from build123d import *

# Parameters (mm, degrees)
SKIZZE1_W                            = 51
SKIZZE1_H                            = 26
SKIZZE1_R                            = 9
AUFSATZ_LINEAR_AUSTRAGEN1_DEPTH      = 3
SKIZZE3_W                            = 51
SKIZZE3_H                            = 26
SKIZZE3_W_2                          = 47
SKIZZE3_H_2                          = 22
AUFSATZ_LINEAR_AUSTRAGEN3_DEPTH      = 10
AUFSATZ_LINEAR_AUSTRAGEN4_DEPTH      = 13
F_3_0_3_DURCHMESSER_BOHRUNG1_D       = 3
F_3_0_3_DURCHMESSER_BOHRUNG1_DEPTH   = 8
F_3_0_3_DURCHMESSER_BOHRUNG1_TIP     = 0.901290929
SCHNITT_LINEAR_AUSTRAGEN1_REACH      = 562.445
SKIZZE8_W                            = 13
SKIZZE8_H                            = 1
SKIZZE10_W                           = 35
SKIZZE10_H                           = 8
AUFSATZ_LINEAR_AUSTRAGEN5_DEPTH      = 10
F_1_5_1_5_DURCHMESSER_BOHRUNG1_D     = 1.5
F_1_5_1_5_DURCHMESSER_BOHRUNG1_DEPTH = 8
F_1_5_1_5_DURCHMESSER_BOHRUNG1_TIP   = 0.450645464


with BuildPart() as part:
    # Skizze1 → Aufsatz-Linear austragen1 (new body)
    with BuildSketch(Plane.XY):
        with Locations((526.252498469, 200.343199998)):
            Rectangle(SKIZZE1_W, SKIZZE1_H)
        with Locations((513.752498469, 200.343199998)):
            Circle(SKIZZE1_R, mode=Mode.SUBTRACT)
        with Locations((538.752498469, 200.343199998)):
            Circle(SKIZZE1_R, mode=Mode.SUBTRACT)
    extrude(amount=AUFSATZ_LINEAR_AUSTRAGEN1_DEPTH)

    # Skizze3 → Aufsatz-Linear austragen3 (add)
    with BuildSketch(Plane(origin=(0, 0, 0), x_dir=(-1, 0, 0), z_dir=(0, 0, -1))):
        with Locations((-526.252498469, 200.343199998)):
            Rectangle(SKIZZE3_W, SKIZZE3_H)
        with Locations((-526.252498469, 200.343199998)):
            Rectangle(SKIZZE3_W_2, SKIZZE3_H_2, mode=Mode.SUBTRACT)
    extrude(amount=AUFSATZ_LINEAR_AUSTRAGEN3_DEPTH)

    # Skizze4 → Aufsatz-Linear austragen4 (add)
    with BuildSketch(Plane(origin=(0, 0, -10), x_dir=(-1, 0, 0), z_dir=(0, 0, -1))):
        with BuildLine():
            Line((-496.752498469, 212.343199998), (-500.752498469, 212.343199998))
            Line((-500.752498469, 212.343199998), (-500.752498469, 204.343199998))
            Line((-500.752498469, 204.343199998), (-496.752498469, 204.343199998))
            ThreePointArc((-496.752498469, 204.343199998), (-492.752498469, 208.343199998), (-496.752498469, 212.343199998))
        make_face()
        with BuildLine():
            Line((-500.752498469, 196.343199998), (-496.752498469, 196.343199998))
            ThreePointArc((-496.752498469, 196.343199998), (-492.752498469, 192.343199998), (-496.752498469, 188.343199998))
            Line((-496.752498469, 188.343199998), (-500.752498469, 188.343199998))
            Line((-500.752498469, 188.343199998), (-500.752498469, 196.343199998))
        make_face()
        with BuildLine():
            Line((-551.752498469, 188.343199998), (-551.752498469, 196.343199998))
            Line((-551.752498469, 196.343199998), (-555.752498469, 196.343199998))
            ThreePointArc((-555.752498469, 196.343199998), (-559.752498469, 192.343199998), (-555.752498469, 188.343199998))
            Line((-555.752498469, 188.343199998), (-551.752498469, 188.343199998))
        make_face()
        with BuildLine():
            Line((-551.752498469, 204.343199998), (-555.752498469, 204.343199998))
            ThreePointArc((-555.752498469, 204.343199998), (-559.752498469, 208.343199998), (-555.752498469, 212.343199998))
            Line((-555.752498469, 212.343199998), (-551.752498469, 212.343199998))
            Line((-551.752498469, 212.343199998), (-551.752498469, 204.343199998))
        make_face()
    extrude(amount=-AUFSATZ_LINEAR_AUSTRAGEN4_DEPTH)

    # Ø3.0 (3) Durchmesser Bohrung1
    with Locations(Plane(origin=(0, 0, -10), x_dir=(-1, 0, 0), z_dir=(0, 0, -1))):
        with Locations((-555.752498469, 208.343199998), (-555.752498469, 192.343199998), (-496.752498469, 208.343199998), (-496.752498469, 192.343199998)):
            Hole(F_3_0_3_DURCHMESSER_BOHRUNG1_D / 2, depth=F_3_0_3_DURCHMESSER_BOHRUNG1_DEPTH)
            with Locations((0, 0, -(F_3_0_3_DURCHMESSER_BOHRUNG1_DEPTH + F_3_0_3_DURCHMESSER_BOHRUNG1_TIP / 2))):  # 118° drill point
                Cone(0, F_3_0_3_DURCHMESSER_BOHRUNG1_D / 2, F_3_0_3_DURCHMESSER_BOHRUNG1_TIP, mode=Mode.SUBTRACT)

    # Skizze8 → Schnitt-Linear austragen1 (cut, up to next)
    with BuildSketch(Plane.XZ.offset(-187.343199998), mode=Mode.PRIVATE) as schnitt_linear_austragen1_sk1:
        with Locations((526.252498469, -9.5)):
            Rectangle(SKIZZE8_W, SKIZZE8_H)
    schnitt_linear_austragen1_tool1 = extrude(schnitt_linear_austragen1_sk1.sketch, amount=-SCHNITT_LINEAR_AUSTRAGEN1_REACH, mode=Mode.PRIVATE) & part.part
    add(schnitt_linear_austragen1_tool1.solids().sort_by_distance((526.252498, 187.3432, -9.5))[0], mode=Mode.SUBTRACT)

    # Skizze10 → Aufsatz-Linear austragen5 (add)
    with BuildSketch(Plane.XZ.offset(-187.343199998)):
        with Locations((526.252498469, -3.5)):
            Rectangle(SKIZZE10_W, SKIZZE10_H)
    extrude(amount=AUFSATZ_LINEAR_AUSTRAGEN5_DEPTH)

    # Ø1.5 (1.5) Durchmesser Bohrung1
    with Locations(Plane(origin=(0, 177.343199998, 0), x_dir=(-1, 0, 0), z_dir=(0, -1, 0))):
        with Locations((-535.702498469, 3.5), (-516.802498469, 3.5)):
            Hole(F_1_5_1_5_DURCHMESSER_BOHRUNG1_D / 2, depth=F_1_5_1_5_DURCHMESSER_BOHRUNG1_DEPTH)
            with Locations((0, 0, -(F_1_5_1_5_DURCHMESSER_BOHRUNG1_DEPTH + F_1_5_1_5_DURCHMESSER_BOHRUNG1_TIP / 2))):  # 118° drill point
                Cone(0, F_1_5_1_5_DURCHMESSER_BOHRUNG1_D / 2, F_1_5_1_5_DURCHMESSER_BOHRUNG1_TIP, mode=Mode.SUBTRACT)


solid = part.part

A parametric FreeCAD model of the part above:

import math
import FreeCAD as App
import Part
import Sketcher
Q = App.Units.Quantity

doc = App.newDocument("Part")
params = doc.addObject("Spreadsheet::Sheet", "Params")
for row, (alias, value) in enumerate([
    ("sketch1_diameter", "18 mm"),
    ("sketch1_width", "51 mm"),
    ("sketch1_height", "26 mm"),
    ("pad1_length", "3 mm"),
    ("sketch2_width", "51 mm"),
    ("sketch2_width2", "47 mm"),
    ("sketch2_height", "26 mm"),
    ("sketch2_height2", "22 mm"),
    ("pad2_length", "10 mm"),
    ("sketch3_radius", "4 mm"),
    ("sketch3_width", "4 mm"),
    ("pad3_length", "13 mm"),
    ("sketch4_diameter", "3 mm"),
    ("hole_diameter", "3 mm"),
    ("hole_depth", "8 mm"),
    ("sketch5_width", "13 mm"),
    ("sketch5_height", "1 mm"),
    ("sketch6_width", "35 mm"),
    ("sketch6_height", "8 mm"),
    ("pad4_length", "10 mm"),
    ("sketch7_diameter", "1.5 mm"),
    ("hole2_diameter", "1.5 mm"),
    ("hole2_depth", "8 mm"),
], start=1):
    params.set(f"A{row}", alias)
    params.set(f"B{row}", "=" + value)
    params.setAlias(f"B{row}", alias)

body = doc.addObject("PartDesign::Body", "Body")

# Sketch on XY plane
sketch1 = doc.addObject("Sketcher::SketchObject", "Sketch")
body.addObject(sketch1)
sketch1.AttachmentSupport = (doc.XY_Plane, [""])
sketch1.MapMode = "FlatFace"
sketch1.addGeometry([
    Part.LineSegment(App.Vector(501, 213, 0), App.Vector(501, 187, 0)),  # 0
    Part.LineSegment(App.Vector(501, 187, 0), App.Vector(552, 187, 0)),  # 1
    Part.LineSegment(App.Vector(552, 187, 0), App.Vector(552, 213, 0)),  # 2
    Part.LineSegment(App.Vector(552, 213, 0), App.Vector(501, 213, 0)),  # 3
    Part.Circle(App.Vector(514, 200, 0), App.Vector(0, 0, 1), 9),  # 4
    Part.Circle(App.Vector(539, 200, 0), App.Vector(0, 0, 1), 9),  # 5
], False)
sketch1.addConstraint([
    Sketcher.Constraint("Coincident", 0, 2, 1, 1),
    Sketcher.Constraint("Coincident", 1, 2, 2, 1),
    Sketcher.Constraint("Coincident", 2, 2, 3, 1),
    Sketcher.Constraint("Coincident", 3, 2, 0, 1),
    Sketcher.Constraint("Vertical", 0),
    Sketcher.Constraint("Horizontal", 1),
    Sketcher.Constraint("Vertical", 2),
    Sketcher.Constraint("Horizontal", 3),
    Sketcher.Constraint("Equal", 4, 5),
    Sketcher.Constraint("Horizontal", 4, 3, 5, 3),
    Sketcher.Constraint("Diameter", 4, Q("18 mm")),
    Sketcher.Constraint("DistanceX", 1, 1, 1, 2, Q("51 mm")),
    Sketcher.Constraint("DistanceY", 0, 2, 0, 1, Q("26 mm")),
    Sketcher.Constraint("DistanceX", 4, 3, 5, 3, Q("25 mm")),
    Sketcher.Constraint("DistanceX", 0, 2, 4, 3, Q("13 mm")),
    Sketcher.Constraint("DistanceY", 0, 2, 4, 3, Q("13 mm")),
    Sketcher.Constraint("DistanceX", -1, 1, 4, 3, Q("513.752498 mm")),
    Sketcher.Constraint("DistanceY", -1, 1, 4, 3, Q("200.3432 mm")),
])
sketch1.setExpression("Constraints[10]", "Params.sketch1_diameter")
sketch1.setExpression("Constraints[11]", "Params.sketch1_width")
sketch1.setExpression("Constraints[12]", "Params.sketch1_height")
pad1 = doc.addObject("PartDesign::Pad", "Pad")
body.addObject(pad1)
pad1.Profile = sketch1
pad1.setExpression("Length", "Params.pad1_length")

# Sketch on XY plane
sketch2 = doc.addObject("Sketcher::SketchObject", "Sketch001")
body.addObject(sketch2)
sketch2.AttachmentSupport = (doc.XY_Plane, [""])
sketch2.MapMode = "FlatFace"
sketch2.addGeometry([
    Part.LineSegment(App.Vector(552, 213, 0), App.Vector(552, 187, 0)),  # 0
    Part.LineSegment(App.Vector(552, 187, 0), App.Vector(501, 187, 0)),  # 1
    Part.LineSegment(App.Vector(501, 187, 0), App.Vector(501, 213, 0)),  # 2
    Part.LineSegment(App.Vector(501, 213, 0), App.Vector(552, 213, 0)),  # 3
    Part.LineSegment(App.Vector(503, 189, 0), App.Vector(550, 189, 0)),  # 4
    Part.LineSegment(App.Vector(550, 189, 0), App.Vector(550, 211, 0)),  # 5
    Part.LineSegment(App.Vector(550, 211, 0), App.Vector(503, 211, 0)),  # 6
    Part.LineSegment(App.Vector(503, 211, 0), App.Vector(503, 189, 0)),  # 7
], False)
sketch2.addConstraint([
    Sketcher.Constraint("Coincident", 0, 2, 1, 1),
    Sketcher.Constraint("Coincident", 1, 2, 2, 1),
    Sketcher.Constraint("Coincident", 2, 2, 3, 1),
    Sketcher.Constraint("Coincident", 3, 2, 0, 1),
    Sketcher.Constraint("Coincident", 4, 2, 5, 1),
    Sketcher.Constraint("Coincident", 5, 2, 6, 1),
    Sketcher.Constraint("Coincident", 6, 2, 7, 1),
    Sketcher.Constraint("Coincident", 7, 2, 4, 1),
    Sketcher.Constraint("Vertical", 0),
    Sketcher.Constraint("Horizontal", 1),
    Sketcher.Constraint("Vertical", 2),
    Sketcher.Constraint("Horizontal", 3),
    Sketcher.Constraint("Horizontal", 4),
    Sketcher.Constraint("Vertical", 5),
    Sketcher.Constraint("Horizontal", 6),
    Sketcher.Constraint("Vertical", 7),
    Sketcher.Constraint("DistanceX", 1, 2, 1, 1, Q("51 mm")),
    Sketcher.Constraint("DistanceX", 4, 1, 4, 2, Q("47 mm")),
    Sketcher.Constraint("DistanceY", 0, 2, 0, 1, Q("26 mm")),
    Sketcher.Constraint("DistanceY", 5, 1, 5, 2, Q("22 mm")),
    Sketcher.Constraint("DistanceX", 4, 2, 0, 2, Q("2 mm")),
    Sketcher.Constraint("DistanceY", 0, 2, 4, 2, Q("2 mm")),
    Sketcher.Constraint("DistanceX", -1, 1, 0, 2, Q("551.752498 mm")),
    Sketcher.Constraint("DistanceY", -1, 1, 0, 2, Q("187.3432 mm")),
])
sketch2.setExpression("Constraints[16]", "Params.sketch2_width")
sketch2.setExpression("Constraints[17]", "Params.sketch2_width2")
sketch2.setExpression("Constraints[18]", "Params.sketch2_height")
sketch2.setExpression("Constraints[19]", "Params.sketch2_height2")
pad2 = doc.addObject("PartDesign::Pad", "Pad001")
body.addObject(pad2)
pad2.Profile = sketch2
pad2.setExpression("Length", "Params.pad2_length")
pad2.Reversed = True

# Sketch on XY plane
sketch3 = doc.addObject("Sketcher::SketchObject", "Sketch002")
body.addObject(sketch3)
sketch3.AttachmentSupport = (doc.XY_Plane, [""])
sketch3.MapMode = "FlatFace"
sketch3.AttachmentOffset = App.Placement(App.Vector(0, 0, -10), App.Rotation())
sketch3.addGeometry([
    Part.LineSegment(App.Vector(496.8, 212.3, 0), App.Vector(500.8, 212.3, 0)),  # 0
    Part.LineSegment(App.Vector(500.8, 212.3, 0), App.Vector(500.8, 204.3, 0)),  # 1
    Part.LineSegment(App.Vector(500.8, 204.3, 0), App.Vector(496.8, 204.3, 0)),  # 2
    Part.ArcOfCircle(Part.Circle(App.Vector(496.8, 208.3, 0), App.Vector(0, 0, 1), 4), math.radians(90), math.radians(270)),  # 3
    Part.LineSegment(App.Vector(496.8, 196.3, 0), App.Vector(500.8, 196.3, 0)),  # 4
    Part.LineSegment(App.Vector(500.8, 196.3, 0), App.Vector(500.8, 188.3, 0)),  # 5
    Part.LineSegment(App.Vector(500.8, 188.3, 0), App.Vector(496.8, 188.3, 0)),  # 6
    Part.ArcOfCircle(Part.Circle(App.Vector(496.8, 192.3, 0), App.Vector(0, 0, 1), 4), math.radians(90), math.radians(270)),  # 7
    Part.LineSegment(App.Vector(551.8, 188.3, 0), App.Vector(551.8, 196.3, 0)),  # 8
    Part.LineSegment(App.Vector(551.8, 196.3, 0), App.Vector(555.8, 196.3, 0)),  # 9
    Part.ArcOfCircle(Part.Circle(App.Vector(555.8, 192.3, 0), App.Vector(0, 0, 1), 4), math.radians(-90), math.radians(90)),  # 10
    Part.LineSegment(App.Vector(555.8, 188.3, 0), App.Vector(551.8, 188.3, 0)),  # 11
    Part.LineSegment(App.Vector(555.8, 204.3, 0), App.Vector(551.8, 204.3, 0)),  # 12
    Part.LineSegment(App.Vector(551.8, 204.3, 0), App.Vector(551.8, 212.3, 0)),  # 13
    Part.LineSegment(App.Vector(551.8, 212.3, 0), App.Vector(555.8, 212.3, 0)),  # 14
    Part.ArcOfCircle(Part.Circle(App.Vector(555.8, 208.3, 0), App.Vector(0, 0, 1), 4), math.radians(-90), math.radians(90)),  # 15
], False)
sketch3.addConstraint([
    Sketcher.Constraint("Coincident", 0, 2, 1, 1),
    Sketcher.Constraint("Coincident", 1, 2, 2, 1),
    Sketcher.Constraint("Tangent", 2, 2, 3, 2),
    Sketcher.Constraint("Tangent", 3, 1, 0, 1),
    Sketcher.Constraint("Coincident", 4, 2, 5, 1),
    Sketcher.Constraint("Coincident", 5, 2, 6, 1),
    Sketcher.Constraint("Tangent", 6, 2, 7, 2),
    Sketcher.Constraint("Tangent", 7, 1, 4, 1),
    Sketcher.Constraint("Coincident", 8, 2, 9, 1),
    Sketcher.Constraint("Tangent", 9, 2, 10, 2),
    Sketcher.Constraint("Tangent", 10, 1, 11, 1),
    Sketcher.Constraint("Coincident", 11, 2, 8, 1),
    Sketcher.Constraint("Coincident", 12, 2, 13, 1),
    Sketcher.Constraint("Coincident", 13, 2, 14, 1),
    Sketcher.Constraint("Tangent", 14, 2, 15, 2),
    Sketcher.Constraint("Tangent", 15, 1, 12, 1),
    Sketcher.Constraint("Horizontal", 0),
    Sketcher.Constraint("Vertical", 1),
    Sketcher.Constraint("Horizontal", 2),
    Sketcher.Constraint("Horizontal", 4),
    Sketcher.Constraint("Vertical", 5),
    Sketcher.Constraint("Horizontal", 6),
    Sketcher.Constraint("Vertical", 8),
    Sketcher.Constraint("Horizontal", 9),
    Sketcher.Constraint("Horizontal", 11),
    Sketcher.Constraint("Horizontal", 12),
    Sketcher.Constraint("Vertical", 13),
    Sketcher.Constraint("Horizontal", 14),
    Sketcher.Constraint("Equal", 3, 7),
    Sketcher.Constraint("Equal", 7, 10),
    Sketcher.Constraint("Equal", 10, 15),
    Sketcher.Constraint("Horizontal", 7, 3, 10, 3),
    Sketcher.Constraint("Horizontal", 3, 3, 15, 3),
    Sketcher.Constraint("Vertical", 3, 3, 7, 3),
    Sketcher.Constraint("Vertical", 10, 3, 15, 3),
    Sketcher.Constraint("Vertical", 1, 2, 4, 2),
    Sketcher.Constraint("Vertical", 11, 2, 12, 2),
    Sketcher.Constraint("Equal", 6, 9),
    Sketcher.Constraint("Radius", 3, Q("4 mm")),
    Sketcher.Constraint("DistanceX", 0, 1, 0, 2, Q("4 mm")),
    Sketcher.Constraint("DistanceY", 7, 3, 3, 3, Q("16 mm")),
    Sketcher.Constraint("DistanceX", 7, 3, 10, 3, Q("59 mm")),
    Sketcher.Constraint("DistanceX", -1, 1, 3, 3, Q("496.752498 mm")),
    Sketcher.Constraint("DistanceY", -1, 1, 3, 3, Q("208.3432 mm")),
])
sketch3.setExpression("Constraints[38]", "Params.sketch3_radius")
sketch3.setExpression("Constraints[39]", "Params.sketch3_width")
pad3 = doc.addObject("PartDesign::Pad", "Pad002")
body.addObject(pad3)
pad3.Profile = sketch3
pad3.setExpression("Length", "Params.pad3_length")

# Sketch on XY plane
sketch4 = doc.addObject("Sketcher::SketchObject", "Sketch003")
body.addObject(sketch4)
sketch4.AttachmentSupport = (doc.XY_Plane, [""])
sketch4.MapMode = "FlatFace"
sketch4.AttachmentOffset = App.Placement(App.Vector(0, 0, -10), App.Rotation())
sketch4.addGeometry([
    Part.Circle(App.Vector(555.8, 208.3, 0), App.Vector(0, 0, 1), 1.5),
    Part.Circle(App.Vector(555.8, 192.3, 0), App.Vector(0, 0, 1), 1.5),
    Part.Circle(App.Vector(496.8, 208.3, 0), App.Vector(0, 0, 1), 1.5),
    Part.Circle(App.Vector(496.8, 192.3, 0), App.Vector(0, 0, 1), 1.5),
], False)
sketch4.addConstraint([
    Sketcher.Constraint("Equal", 0, 1),
    Sketcher.Constraint("Equal", 1, 2),
    Sketcher.Constraint("Equal", 2, 3),
    Sketcher.Constraint("Horizontal", 0, 3, 2, 3),
    Sketcher.Constraint("Horizontal", 1, 3, 3, 3),
    Sketcher.Constraint("Vertical", 0, 3, 1, 3),
    Sketcher.Constraint("Vertical", 2, 3, 3, 3),
    Sketcher.Constraint("Diameter", 0, Q("3 mm")),
    Sketcher.Constraint("DistanceY", 1, 3, 0, 3, Q("16 mm")),
    Sketcher.Constraint("DistanceX", 2, 3, 0, 3, Q("59 mm")),
    Sketcher.Constraint("DistanceX", -1, 1, 0, 3, Q("555.752498 mm")),
    Sketcher.Constraint("DistanceY", -1, 1, 0, 3, Q("208.3432 mm")),
])
sketch4.setExpression("Constraints[7]", "Params.sketch4_diameter")
doc.recompute()
hole = doc.addObject("PartDesign::Hole", "Hole")
body.addObject(hole)
hole.Profile = sketch4
hole.ThreadType = "None"
hole.setExpression("Diameter", "Params.hole_diameter")
hole.DepthType = "Dimension"
hole.setExpression("Depth", "Params.hole_depth")
hole.DrillPoint = "Angled"
hole.DrillPointAngle = 118
hole.Reversed = True

# Sketch on XZ plane
sketch5 = doc.addObject("Sketcher::SketchObject", "Sketch004")
body.addObject(sketch5)
sketch5.AttachmentSupport = (doc.XZ_Plane, [""])
sketch5.MapMode = "FlatFace"
sketch5.AttachmentOffset = App.Placement(App.Vector(0, 0, -187.3432), App.Rotation())
sketch5.addGeometry([
    Part.LineSegment(App.Vector(519.8, -9, 0), App.Vector(519.8, -10, 0)),
    Part.LineSegment(App.Vector(519.8, -10, 0), App.Vector(532.8, -10, 0)),
    Part.LineSegment(App.Vector(532.8, -10, 0), App.Vector(532.8, -9, 0)),
    Part.LineSegment(App.Vector(532.8, -9, 0), App.Vector(519.8, -9, 0)),
], False)
sketch5.addConstraint([
    Sketcher.Constraint("Coincident", 0, 2, 1, 1),
    Sketcher.Constraint("Coincident", 1, 2, 2, 1),
    Sketcher.Constraint("Coincident", 2, 2, 3, 1),
    Sketcher.Constraint("Coincident", 3, 2, 0, 1),
    Sketcher.Constraint("Vertical", 0),
    Sketcher.Constraint("Horizontal", 1),
    Sketcher.Constraint("Vertical", 2),
    Sketcher.Constraint("Horizontal", 3),
    Sketcher.Constraint("DistanceX", 1, 1, 1, 2, Q("13 mm")),
    Sketcher.Constraint("DistanceY", 0, 2, 0, 1, Q("1 mm")),
    Sketcher.Constraint("DistanceY", 0, 2, -1, 1, Q("10 mm")),
    Sketcher.Constraint("DistanceX", -1, 1, 0, 2, Q("519.752498 mm")),
])
sketch5.setExpression("Constraints[8]", "Params.sketch5_width")
sketch5.setExpression("Constraints[9]", "Params.sketch5_height")
pocket1 = doc.addObject("PartDesign::Pocket", "Pocket")
body.addObject(pocket1)
pocket1.Profile = sketch5
pocket1.Type = "UpToFirst"

# Sketch on XZ plane
sketch6 = doc.addObject("Sketcher::SketchObject", "Sketch005")
body.addObject(sketch6)
sketch6.AttachmentSupport = (doc.XZ_Plane, [""])
sketch6.MapMode = "FlatFace"
sketch6.AttachmentOffset = App.Placement(App.Vector(0, 0, -187.3432), App.Rotation())
sketch6.addGeometry([
    Part.LineSegment(App.Vector(509, 0, 0), App.Vector(509, -8, 0)),
    Part.LineSegment(App.Vector(509, -8, 0), App.Vector(544, -8, 0)),
    Part.LineSegment(App.Vector(544, -8, 0), App.Vector(544, 0, 0)),
    Part.LineSegment(App.Vector(544, 0, 0), App.Vector(509, 0, 0)),
], False)
sketch6.addConstraint([
    Sketcher.Constraint("Coincident", 0, 2, 1, 1),
    Sketcher.Constraint("Coincident", 1, 2, 2, 1),
    Sketcher.Constraint("Coincident", 2, 2, 3, 1),
    Sketcher.Constraint("Coincident", 3, 2, 0, 1),
    Sketcher.Constraint("Vertical", 0),
    Sketcher.Constraint("Horizontal", 1),
    Sketcher.Constraint("Vertical", 2),
    Sketcher.Constraint("Horizontal", 3),
    Sketcher.Constraint("DistanceX", 1, 1, 1, 2, Q("35 mm")),
    Sketcher.Constraint("DistanceY", 0, 2, 0, 1, Q("8 mm")),
    Sketcher.Constraint("DistanceY", 0, 2, -1, 1, Q("7.5 mm")),
    Sketcher.Constraint("DistanceX", -1, 1, 0, 2, Q("508.752498 mm")),
])
sketch6.setExpression("Constraints[8]", "Params.sketch6_width")
sketch6.setExpression("Constraints[9]", "Params.sketch6_height")
pad4 = doc.addObject("PartDesign::Pad", "Pad003")
body.addObject(pad4)
pad4.Profile = sketch6
pad4.setExpression("Length", "Params.pad4_length")

# Sketch on XZ plane
sketch7 = doc.addObject("Sketcher::SketchObject", "Sketch006")
body.addObject(sketch7)
sketch7.AttachmentSupport = (doc.XZ_Plane, [""])
sketch7.MapMode = "FlatFace"
sketch7.AttachmentOffset = App.Placement(App.Vector(0, 0, -177.3432), App.Rotation())
sketch7.addGeometry([
    Part.Circle(App.Vector(535.7, -3.5, 0), App.Vector(0, 0, 1), 0.8),
    Part.Circle(App.Vector(516.8, -3.5, 0), App.Vector(0, 0, 1), 0.8),
], False)
sketch7.addConstraint([
    Sketcher.Constraint("Equal", 0, 1),
    Sketcher.Constraint("Horizontal", 0, 3, 1, 3),
    Sketcher.Constraint("Diameter", 0, Q("1.5 mm")),
    Sketcher.Constraint("DistanceY", 0, 3, -1, 1, Q("3.5 mm")),
    Sketcher.Constraint("DistanceX", 1, 3, 0, 3, Q("18.9 mm")),
    Sketcher.Constraint("DistanceX", -1, 1, 0, 3, Q("535.702498 mm")),
])
sketch7.setExpression("Constraints[2]", "Params.sketch7_diameter")
doc.recompute()
hole2 = doc.addObject("PartDesign::Hole", "Hole001")
body.addObject(hole2)
hole2.Profile = sketch7
hole2.ThreadType = "None"
hole2.setExpression("Diameter", "Params.hole2_diameter")
hole2.DepthType = "Dimension"
hole2.setExpression("Depth", "Params.hole2_depth")
hole2.DrillPoint = "Angled"
hole2.DrillPointAngle = 118

doc.recompute()
